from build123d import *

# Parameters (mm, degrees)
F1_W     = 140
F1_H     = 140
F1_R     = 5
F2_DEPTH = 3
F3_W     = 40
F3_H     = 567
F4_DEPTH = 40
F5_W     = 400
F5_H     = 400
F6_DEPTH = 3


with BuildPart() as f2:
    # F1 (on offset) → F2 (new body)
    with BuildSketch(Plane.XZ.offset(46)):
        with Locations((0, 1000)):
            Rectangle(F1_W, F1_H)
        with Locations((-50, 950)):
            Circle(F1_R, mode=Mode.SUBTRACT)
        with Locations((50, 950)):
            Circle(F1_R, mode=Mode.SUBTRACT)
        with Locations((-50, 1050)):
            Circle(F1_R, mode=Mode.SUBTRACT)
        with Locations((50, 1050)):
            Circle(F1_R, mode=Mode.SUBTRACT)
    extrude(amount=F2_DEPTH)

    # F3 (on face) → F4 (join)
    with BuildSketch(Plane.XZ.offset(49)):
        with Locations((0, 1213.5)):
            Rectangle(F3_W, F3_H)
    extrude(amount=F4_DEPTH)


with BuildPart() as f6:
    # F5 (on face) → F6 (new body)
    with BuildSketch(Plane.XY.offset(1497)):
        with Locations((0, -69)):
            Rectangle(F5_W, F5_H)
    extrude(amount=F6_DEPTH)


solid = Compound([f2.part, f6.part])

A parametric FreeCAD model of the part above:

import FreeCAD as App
import Part
import Sketcher

V = App.Vector
Q = App.Units.Quantity

doc = App.newDocument("Part")
params = doc.addObject("Spreadsheet::Sheet", "Params")
for row, (alias, value) in enumerate([
    ("sketch1_diameter", "10 mm"),
    ("sketch1_width", "140 mm"),
    ("pad1_length", "3 mm"),
    ("sketch2_width", "40 mm"),
    ("sketch2_height", "567 mm"),
    ("pad2_length", "40 mm"),
    ("sketch3_width", "400 mm"),
    ("pad3_length", "3 mm"),
], start=1):
    params.set(f"A{row}", alias)
    params.set(f"B{row}", "=" + value)
    params.setAlias(f"B{row}", alias)

body = doc.addObject("PartDesign::Body", "Body")

sketch1 = doc.addObject("Sketcher::SketchObject", "Sketch")
body.addObject(sketch1)
sketch1.AttachmentSupport = (doc.XZ_Plane, [""])
sketch1.MapMode = "FlatFace"
sketch1.AttachmentOffset = App.Placement(V(0, 0, 46), App.Rotation())
sketch1.addGeometry([
    Part.LineSegment(V(-70, 1070, 0), V(-70, 930, 0)),
    Part.LineSegment(V(-70, 930, 0), V(70, 930, 0)),
    Part.LineSegment(V(70, 930, 0), V(70, 1070, 0)),
    Part.LineSegment(V(70, 1070, 0), V(-70, 1070, 0)),
    Part.Circle(V(-50, 950, 0), V(0, 0, 1), 5),
    Part.Circle(V(50, 950, 0), V(0, 0, 1), 5),
    Part.Circle(V(-50, 1050, 0), V(0, 0, 1), 5),
    Part.Circle(V(50, 1050, 0), V(0, 0, 1), 5),
], False)
sketch1.addConstraint([
    Sketcher.Constraint("Coincident", 0, 2, 1, 1),
    Sketcher.Constraint("Coincident", 1, 2, 2, 1),
    Sketcher.Constraint("Coincident", 2, 2, 3, 1),
    Sketcher.Constraint("Coincident", 3, 2, 0, 1),
    Sketcher.Constraint("Vertical", 0),
    Sketcher.Constraint("Horizontal", 1),
    Sketcher.Constraint("Vertical", 2),
    Sketcher.Constraint("Horizontal", 3),
    Sketcher.Constraint("Equal", 4, 5),
    Sketcher.Constraint("Equal", 5, 6),
    Sketcher.Constraint("Equal", 6, 7),
    Sketcher.Constraint("Symmetric", 4, 3, 5, 3, -2),
    Sketcher.Constraint("Symmetric", 6, 3, 7, 3, -2),
    Sketcher.Constraint("Vertical", 4, 3, 6, 3),
    Sketcher.Constraint("Equal", 3, 0),
    Sketcher.Constraint("Diameter", 4, Q("10 mm")),
    Sketcher.Constraint("DistanceX", 1, 1, 1, 2, Q("140 mm")),
    Sketcher.Constraint("DistanceX", 4, 3, -1, 1, Q("50 mm")),
    Sketcher.Constraint("DistanceY", -1, 1, 4, 3, Q("950 mm")),
    Sketcher.Constraint("DistanceY", -1, 1, 6, 3, Q("1050 mm")),
    Sketcher.Constraint("DistanceX", 0, 2, -1, 1, Q("70 mm")),
    Sketcher.Constraint("DistanceY", -1, 1, 0, 2, Q("930 mm")),
])
sketch1.setExpression("Constraints[15]", "Params.sketch1_diameter")
sketch1.setExpression("Constraints[16]", "Params.sketch1_width")
pad1 = doc.addObject("PartDesign::Pad", "Pad")
body.addObject(pad1)
pad1.Profile = sketch1
pad1.setExpression("Length", "Params.pad1_length")

sketch2 = doc.addObject("Sketcher::SketchObject", "Sketch001")
body.addObject(sketch2)
sketch2.AttachmentSupport = (doc.XZ_Plane, [""])
sketch2.MapMode = "FlatFace"
sketch2.AttachmentOffset = App.Placement(V(0, 0, 49), App.Rotation())
sketch2.addGeometry([
    Part.LineSegment(V(-20, 1497, 0), V(-20, 930, 0)),
    Part.LineSegment(V(-20, 930, 0), V(20, 930, 0)),
    Part.LineSegment(V(20, 930, 0), V(20, 1497, 0)),
    Part.LineSegment(V(20, 1497, 0), V(-20, 1497, 0)),
], False)
sketch2.addConstraint([
    Sketcher.Constraint("Coincident", 0, 2, 1, 1),
    Sketcher.Constraint("Coincident", 1, 2, 2, 1),
    Sketcher.Constraint("Coincident", 2, 2, 3, 1),
    Sketcher.Constraint("Coincident", 3, 2, 0, 1),
    Sketcher.Constraint("Vertical", 0),
    Sketcher.Constraint("Horizontal", 1),
    Sketcher.Constraint("Vertical", 2),
    Sketcher.Constraint("Horizontal", 3),
    Sketcher.Constraint("DistanceX", 1, 1, 1, 2, Q("40 mm")),
    Sketcher.Constraint("DistanceY", 0, 2, 0, 1, Q("567 mm")),
    Sketcher.Constraint("DistanceX", 0, 2, -1, 1, Q("20 mm")),
    Sketcher.Constraint("DistanceY", -1, 1, 0, 2, Q("930 mm")),
])
sketch2.setExpression("Constraints[8]", "Params.sketch2_width")
sketch2.setExpression("Constraints[9]", "Params.sketch2_height")
pad2 = doc.addObject("PartDesign::Pad", "Pad001")
body.addObject(pad2)
pad2.Profile = sketch2
pad2.setExpression("Length", "Params.pad2_length")
body2 = doc.addObject("PartDesign::Body", "Body001")

sketch3 = doc.addObject("Sketcher::SketchObject", "Sketch002")
body2.addObject(sketch3)
sketch3.AttachmentSupport = (doc.getObject("XY_Plane001"), [""])
sketch3.MapMode = "FlatFace"
sketch3.AttachmentOffset = App.Placement(V(0, 0, 1497), App.Rotation())
sketch3.addGeometry([
    Part.LineSegment(V(-200, 131, 0), V(-200, -269, 0)),
    Part.LineSegment(V(-200, -269, 0), V(200, -269, 0)),
    Part.LineSegment(V(200, -269, 0), V(200, 131, 0)),
    Part.LineSegment(V(200, 131, 0), V(-200, 131, 0)),
], False)
sketch3.addConstraint([
    Sketcher.Constraint("Coincident", 0, 2, 1, 1),
    Sketcher.Constraint("Coincident", 1, 2, 2, 1),
    Sketcher.Constraint("Coincident", 2, 2, 3, 1),
    Sketcher.Constraint("Coincident", 3, 2, 0, 1),
    Sketcher.Constraint("Vertical", 0),
    Sketcher.Constraint("Horizontal", 1),
    Sketcher.Constraint("Vertical", 2),
    Sketcher.Constraint("Horizontal", 3),
    Sketcher.Constraint("Equal", 3, 0),
    Sketcher.Constraint("DistanceX", 1, 1, 1, 2, Q("400 mm")),
    Sketcher.Constraint("DistanceX", 0, 2, -1, 1, Q("200 mm")),
    Sketcher.Constraint("DistanceY", 0, 2, -1, 1, Q("269 mm")),
])
sketch3.setExpression("Constraints[9]", "Params.sketch3_width")
pad3 = doc.addObject("PartDesign::Pad", "Pad002")
body2.addObject(pad3)
pad3.Profile = sketch3
pad3.setExpression("Length", "Params.pad3_length")

doc.recompute()
